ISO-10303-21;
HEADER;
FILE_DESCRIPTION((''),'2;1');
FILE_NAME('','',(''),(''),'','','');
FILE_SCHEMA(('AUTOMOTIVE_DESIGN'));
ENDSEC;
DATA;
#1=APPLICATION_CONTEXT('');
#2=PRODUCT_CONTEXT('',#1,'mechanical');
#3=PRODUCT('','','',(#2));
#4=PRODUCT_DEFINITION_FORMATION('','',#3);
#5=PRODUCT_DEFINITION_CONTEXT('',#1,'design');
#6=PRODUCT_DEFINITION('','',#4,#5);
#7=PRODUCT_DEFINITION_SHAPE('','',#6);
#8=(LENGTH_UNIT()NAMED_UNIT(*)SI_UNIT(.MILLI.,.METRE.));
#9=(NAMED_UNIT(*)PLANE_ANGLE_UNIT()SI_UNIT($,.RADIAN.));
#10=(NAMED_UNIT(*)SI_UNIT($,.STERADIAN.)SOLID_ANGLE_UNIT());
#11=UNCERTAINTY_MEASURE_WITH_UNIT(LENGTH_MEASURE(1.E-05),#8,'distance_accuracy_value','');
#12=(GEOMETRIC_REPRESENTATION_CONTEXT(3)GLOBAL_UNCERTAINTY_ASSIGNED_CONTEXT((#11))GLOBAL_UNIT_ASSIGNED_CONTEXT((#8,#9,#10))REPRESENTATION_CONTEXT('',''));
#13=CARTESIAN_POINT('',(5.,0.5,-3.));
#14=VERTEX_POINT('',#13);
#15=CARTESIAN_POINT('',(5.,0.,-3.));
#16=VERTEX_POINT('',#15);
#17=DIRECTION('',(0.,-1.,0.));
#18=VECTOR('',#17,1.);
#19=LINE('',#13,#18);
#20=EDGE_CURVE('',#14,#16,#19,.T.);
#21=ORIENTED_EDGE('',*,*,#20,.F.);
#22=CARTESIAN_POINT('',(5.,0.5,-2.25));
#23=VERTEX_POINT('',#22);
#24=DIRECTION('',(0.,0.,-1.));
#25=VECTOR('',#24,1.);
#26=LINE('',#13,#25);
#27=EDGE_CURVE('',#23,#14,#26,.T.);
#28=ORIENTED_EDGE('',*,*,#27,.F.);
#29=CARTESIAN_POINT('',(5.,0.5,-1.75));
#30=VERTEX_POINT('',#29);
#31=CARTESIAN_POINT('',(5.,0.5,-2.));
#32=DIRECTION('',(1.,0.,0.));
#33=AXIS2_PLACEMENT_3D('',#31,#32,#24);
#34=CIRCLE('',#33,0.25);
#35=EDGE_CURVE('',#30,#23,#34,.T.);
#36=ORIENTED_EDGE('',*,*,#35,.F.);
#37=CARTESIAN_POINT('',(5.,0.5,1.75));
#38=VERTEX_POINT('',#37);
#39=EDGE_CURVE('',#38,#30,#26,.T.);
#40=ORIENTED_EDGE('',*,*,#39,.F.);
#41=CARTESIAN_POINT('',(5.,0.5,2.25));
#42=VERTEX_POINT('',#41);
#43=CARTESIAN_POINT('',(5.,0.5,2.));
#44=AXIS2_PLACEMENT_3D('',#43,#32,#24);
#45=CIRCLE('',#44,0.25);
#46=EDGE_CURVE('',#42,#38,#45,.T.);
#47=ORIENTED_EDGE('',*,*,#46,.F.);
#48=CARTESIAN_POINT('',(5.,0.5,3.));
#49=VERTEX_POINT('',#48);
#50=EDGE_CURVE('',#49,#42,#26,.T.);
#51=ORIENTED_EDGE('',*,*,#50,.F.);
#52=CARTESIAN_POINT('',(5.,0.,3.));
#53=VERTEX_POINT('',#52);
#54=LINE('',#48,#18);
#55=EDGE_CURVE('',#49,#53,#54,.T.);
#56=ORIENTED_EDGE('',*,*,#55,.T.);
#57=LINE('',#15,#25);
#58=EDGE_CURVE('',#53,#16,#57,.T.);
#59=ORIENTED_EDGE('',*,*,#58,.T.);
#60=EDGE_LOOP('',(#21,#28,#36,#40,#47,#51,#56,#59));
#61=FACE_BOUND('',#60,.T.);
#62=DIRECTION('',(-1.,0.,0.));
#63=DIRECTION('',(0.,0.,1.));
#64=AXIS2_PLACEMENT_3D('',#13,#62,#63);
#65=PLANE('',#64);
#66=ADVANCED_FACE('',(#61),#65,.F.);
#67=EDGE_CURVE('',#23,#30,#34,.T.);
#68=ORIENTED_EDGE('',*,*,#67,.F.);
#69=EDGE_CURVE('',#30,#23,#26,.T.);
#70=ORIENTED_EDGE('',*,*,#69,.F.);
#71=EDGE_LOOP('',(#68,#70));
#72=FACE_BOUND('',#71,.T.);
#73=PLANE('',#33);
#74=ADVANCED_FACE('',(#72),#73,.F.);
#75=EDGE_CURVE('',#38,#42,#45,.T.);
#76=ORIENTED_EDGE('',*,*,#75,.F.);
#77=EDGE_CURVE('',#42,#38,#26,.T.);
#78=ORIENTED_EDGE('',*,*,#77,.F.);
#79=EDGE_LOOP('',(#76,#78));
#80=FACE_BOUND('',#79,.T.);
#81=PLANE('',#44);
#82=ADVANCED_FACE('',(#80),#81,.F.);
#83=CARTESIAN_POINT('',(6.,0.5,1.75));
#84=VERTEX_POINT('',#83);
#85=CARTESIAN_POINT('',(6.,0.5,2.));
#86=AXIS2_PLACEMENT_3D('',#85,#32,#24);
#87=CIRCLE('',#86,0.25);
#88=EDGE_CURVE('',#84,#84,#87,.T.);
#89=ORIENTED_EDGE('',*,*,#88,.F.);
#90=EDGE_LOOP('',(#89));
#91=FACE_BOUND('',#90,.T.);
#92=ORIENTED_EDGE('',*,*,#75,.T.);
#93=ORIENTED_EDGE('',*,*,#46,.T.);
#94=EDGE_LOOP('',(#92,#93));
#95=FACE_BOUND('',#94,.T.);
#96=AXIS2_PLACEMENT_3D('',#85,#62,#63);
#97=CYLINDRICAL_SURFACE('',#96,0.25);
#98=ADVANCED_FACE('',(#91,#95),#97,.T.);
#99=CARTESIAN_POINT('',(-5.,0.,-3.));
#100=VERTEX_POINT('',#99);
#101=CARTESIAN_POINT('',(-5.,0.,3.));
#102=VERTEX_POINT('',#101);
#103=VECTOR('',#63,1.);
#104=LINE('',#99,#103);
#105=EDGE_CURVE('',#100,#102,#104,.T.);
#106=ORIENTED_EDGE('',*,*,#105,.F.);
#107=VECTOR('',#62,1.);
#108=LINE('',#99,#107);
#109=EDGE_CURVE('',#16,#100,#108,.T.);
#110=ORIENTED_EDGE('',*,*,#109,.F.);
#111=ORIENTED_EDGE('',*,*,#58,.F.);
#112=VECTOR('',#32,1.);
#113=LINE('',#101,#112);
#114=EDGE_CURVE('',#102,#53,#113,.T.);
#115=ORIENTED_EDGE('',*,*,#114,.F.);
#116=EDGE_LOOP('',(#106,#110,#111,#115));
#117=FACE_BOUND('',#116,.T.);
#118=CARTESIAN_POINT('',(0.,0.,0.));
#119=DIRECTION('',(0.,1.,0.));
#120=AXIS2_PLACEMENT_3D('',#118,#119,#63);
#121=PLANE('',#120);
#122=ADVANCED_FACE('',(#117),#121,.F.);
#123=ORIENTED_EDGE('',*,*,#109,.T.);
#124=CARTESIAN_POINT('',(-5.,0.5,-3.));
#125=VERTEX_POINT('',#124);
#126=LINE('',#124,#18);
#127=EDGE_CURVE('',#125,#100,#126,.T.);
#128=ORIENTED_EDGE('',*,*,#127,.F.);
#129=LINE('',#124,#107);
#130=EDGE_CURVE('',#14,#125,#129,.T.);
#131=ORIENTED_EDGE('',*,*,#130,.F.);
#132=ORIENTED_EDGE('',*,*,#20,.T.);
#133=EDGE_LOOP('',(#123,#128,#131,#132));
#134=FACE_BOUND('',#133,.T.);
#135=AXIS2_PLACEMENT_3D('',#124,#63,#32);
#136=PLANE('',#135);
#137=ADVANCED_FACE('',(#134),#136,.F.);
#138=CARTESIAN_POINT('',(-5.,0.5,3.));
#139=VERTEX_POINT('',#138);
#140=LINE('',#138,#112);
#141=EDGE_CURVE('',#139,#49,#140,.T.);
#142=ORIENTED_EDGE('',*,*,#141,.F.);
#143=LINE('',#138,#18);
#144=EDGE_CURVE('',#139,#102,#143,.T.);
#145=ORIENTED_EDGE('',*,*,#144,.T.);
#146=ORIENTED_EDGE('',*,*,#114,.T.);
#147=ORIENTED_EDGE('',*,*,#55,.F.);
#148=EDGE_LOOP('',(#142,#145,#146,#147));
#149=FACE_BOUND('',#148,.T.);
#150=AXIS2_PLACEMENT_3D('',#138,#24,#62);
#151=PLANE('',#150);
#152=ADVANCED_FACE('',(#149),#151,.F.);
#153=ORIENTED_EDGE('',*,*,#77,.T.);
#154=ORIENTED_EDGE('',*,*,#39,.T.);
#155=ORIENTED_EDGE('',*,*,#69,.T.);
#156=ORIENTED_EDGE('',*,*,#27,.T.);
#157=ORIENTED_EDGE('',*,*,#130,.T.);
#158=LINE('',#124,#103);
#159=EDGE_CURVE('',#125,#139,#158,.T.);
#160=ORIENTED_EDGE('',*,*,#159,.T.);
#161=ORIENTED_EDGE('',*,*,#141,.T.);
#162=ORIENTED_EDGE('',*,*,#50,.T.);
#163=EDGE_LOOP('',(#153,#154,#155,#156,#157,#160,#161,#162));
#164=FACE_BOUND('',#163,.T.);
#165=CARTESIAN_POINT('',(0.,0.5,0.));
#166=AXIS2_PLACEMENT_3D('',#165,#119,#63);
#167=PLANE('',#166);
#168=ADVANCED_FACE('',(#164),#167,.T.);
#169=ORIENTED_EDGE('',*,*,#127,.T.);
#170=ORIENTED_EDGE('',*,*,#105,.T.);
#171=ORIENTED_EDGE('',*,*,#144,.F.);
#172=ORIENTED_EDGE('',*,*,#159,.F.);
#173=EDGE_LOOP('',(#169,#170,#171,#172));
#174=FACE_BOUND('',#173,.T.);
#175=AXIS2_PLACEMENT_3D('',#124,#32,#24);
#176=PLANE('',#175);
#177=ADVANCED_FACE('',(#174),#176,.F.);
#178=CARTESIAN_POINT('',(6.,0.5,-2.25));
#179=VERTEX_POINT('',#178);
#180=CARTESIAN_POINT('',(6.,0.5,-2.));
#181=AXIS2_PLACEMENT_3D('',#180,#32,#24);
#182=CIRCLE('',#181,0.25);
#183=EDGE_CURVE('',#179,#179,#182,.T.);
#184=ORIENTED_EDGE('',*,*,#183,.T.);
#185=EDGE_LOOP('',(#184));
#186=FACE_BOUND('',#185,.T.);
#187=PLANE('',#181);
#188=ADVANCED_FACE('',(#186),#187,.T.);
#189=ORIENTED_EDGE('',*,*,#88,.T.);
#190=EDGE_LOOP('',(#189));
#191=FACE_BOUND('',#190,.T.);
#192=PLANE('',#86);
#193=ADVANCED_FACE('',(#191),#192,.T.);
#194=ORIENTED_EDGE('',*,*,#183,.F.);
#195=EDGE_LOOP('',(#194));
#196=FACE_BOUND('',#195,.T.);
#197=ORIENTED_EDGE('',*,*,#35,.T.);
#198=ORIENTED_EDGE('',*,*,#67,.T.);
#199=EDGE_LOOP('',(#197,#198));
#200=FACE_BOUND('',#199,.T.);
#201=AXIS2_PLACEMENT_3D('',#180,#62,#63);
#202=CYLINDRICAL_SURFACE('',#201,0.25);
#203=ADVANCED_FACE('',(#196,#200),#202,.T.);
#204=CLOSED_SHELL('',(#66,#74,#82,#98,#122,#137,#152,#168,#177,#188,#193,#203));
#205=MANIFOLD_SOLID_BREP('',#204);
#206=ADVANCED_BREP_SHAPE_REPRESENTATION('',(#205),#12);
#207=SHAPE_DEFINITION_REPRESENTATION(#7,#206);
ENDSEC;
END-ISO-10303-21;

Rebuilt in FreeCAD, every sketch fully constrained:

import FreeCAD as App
import Part
import Sketcher
from FreeCAD import Vector
Q = App.Units.Quantity


def add_polygon(sketch, points):
    """Adds a closed chain of lines whose ends are joined by coincident constraints."""
    first, n = sketch.GeometryCount, len(points)
    for a, b in zip(points, points[1:] + points[:1]):
        sketch.addGeometry(Part.LineSegment(App.Vector(*a, 0), App.Vector(*b, 0)), False)
    for i in range(n):
        sketch.addConstraint(Sketcher.Constraint("Coincident", first + i, 2, first + (i + 1) % n, 1))

doc = App.newDocument("Part")
body = doc.addObject("PartDesign::Body", "Body")

# Sketch on XZ plane
sketch1 = body.newObject("Sketcher::SketchObject", "Sketch")
sketch1.AttachmentSupport = (doc.getObject("XZ_Plane"), [""])
sketch1.MapMode = "FlatFace"
add_polygon(sketch1, [(-5, -3), (-5, 3), (5, 3), (5, -3)])  # lines 0-3
sketch1.addConstraint(Sketcher.Constraint("Vertical", 0))
sketch1.addConstraint(Sketcher.Constraint("Horizontal", 1))
sketch1.addConstraint(Sketcher.Constraint("Vertical", 2))
sketch1.addConstraint(Sketcher.Constraint("Horizontal", 3))
sketch1.addConstraint(Sketcher.Constraint("Symmetric", 0, 2, 2, 2, -1, 1))
sketch1.addConstraint(Sketcher.Constraint("DistanceX", 1, 1, 1, 2, Q("10 mm")))
sketch1.addConstraint(Sketcher.Constraint("DistanceY", 0, 1, 0, 2, Q("6 mm")))
pad1 = body.newObject("PartDesign::Pad", "Pad")
pad1.Profile = sketch1
pad1.Length = 0.5
pad1.Reversed = True

# Sketch on YZ plane
sketch2 = body.newObject("Sketcher::SketchObject", "Sketch001")
sketch2.AttachmentSupport = (doc.getObject("YZ_Plane"), [""])
sketch2.MapMode = "FlatFace"
sketch2.AttachmentOffset = App.Placement(Vector(0, 0, 5), App.Rotation())
sketch2.addGeometry(Part.Circle(Vector(0.5, 2, 0), Vector(0, 0, 1), 0.25), False)
sketch2.addGeometry(Part.Circle(Vector(0.5, -2, 0), Vector(0, 0, 1), 0.25), False)
sketch2.addConstraint(Sketcher.Constraint("Equal", 0, 1))
sketch2.addConstraint(Sketcher.Constraint("Symmetric", 0, 3, 1, 3, -1))
sketch2.addConstraint(Sketcher.Constraint("Diameter", 0, Q("0.5 mm")))
sketch2.addConstraint(Sketcher.Constraint("DistanceY", -1, 1, 0, 3, Q("2 mm")))
sketch2.addConstraint(Sketcher.Constraint("DistanceX", -1, 1, 0, 3, Q("0.5 mm")))
pad2 = body.newObject("PartDesign::Pad", "Pad001")
pad2.Profile = sketch2
pad2.Length = 1

doc.recompute()
